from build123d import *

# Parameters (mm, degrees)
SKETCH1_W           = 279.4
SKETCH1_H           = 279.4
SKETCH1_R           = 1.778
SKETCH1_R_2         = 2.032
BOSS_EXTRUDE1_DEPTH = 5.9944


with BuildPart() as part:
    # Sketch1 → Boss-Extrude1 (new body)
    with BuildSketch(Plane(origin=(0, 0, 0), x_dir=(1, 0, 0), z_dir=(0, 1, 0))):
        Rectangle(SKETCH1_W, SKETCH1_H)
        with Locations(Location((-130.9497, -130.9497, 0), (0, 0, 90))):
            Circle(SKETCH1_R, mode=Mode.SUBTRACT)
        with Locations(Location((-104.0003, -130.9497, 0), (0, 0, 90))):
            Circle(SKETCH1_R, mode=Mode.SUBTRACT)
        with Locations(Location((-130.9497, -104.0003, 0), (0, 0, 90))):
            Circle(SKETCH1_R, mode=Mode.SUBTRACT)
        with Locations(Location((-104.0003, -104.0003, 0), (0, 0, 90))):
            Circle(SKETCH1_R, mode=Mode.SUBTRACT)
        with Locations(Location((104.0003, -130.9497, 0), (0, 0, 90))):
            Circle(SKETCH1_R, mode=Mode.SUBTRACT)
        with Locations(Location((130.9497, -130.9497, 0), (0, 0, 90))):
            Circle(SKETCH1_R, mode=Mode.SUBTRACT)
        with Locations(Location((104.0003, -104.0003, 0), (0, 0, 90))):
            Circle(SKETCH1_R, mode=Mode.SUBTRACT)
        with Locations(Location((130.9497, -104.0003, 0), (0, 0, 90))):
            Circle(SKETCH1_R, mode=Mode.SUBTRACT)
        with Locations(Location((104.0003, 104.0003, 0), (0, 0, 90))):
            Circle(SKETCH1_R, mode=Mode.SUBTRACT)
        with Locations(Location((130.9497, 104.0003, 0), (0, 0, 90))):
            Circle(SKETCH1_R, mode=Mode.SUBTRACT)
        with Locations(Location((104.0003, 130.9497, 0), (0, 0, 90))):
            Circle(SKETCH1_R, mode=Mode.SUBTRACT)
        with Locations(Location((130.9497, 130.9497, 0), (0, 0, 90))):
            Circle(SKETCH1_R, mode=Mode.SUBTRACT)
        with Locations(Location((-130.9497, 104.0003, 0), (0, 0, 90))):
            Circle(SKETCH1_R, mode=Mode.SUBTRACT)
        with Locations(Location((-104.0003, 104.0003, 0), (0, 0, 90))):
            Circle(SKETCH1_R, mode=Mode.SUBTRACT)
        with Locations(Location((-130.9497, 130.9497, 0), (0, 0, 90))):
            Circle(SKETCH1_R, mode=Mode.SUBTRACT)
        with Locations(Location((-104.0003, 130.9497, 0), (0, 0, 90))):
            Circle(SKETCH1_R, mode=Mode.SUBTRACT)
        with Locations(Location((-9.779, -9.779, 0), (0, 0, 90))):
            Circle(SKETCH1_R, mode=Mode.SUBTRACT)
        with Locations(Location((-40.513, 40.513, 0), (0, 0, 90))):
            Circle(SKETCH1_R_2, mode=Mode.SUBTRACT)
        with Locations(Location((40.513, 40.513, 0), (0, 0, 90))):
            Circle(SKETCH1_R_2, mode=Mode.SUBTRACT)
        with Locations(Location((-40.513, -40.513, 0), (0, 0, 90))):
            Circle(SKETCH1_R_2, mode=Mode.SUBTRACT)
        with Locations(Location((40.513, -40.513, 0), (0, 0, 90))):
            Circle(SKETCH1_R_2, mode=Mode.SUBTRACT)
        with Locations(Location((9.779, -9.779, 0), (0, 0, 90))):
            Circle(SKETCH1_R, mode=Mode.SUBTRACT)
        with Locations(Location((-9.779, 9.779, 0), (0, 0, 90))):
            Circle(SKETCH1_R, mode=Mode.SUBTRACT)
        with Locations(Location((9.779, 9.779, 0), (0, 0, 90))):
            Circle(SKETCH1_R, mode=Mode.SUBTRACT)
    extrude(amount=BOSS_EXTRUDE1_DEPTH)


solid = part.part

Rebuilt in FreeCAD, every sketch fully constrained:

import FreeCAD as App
import Part
import Sketcher
Q = App.Units.Quantity

doc = App.newDocument("Part")
body = doc.addObject("PartDesign::Body", "Body")

sketch1 = body.newObject("Sketcher::SketchObject", "Sketch")
sketch1.AttachmentSupport = (doc.getObject("XZ_Plane"), [""])
sketch1.MapMode = "FlatFace"
sketch1.addGeometry([
    Part.LineSegment(App.Vector(-139.7, -139.7, 0), App.Vector(-139.7, 139.7, 0)),
    Part.LineSegment(App.Vector(-139.7, 139.7, 0), App.Vector(139.7, 139.7, 0)),
    Part.LineSegment(App.Vector(139.7, 139.7, 0), App.Vector(139.7, -139.7, 0)),
    Part.LineSegment(App.Vector(139.7, -139.7, 0), App.Vector(-139.7, -139.7, 0)),
    Part.Circle(App.Vector(-130.9, 130.9, 0), App.Vector(0, 0, 1), 1.8),
    Part.Circle(App.Vector(-104, 130.9, 0), App.Vector(0, 0, 1), 1.8),
    Part.Circle(App.Vector(-130.9, 104, 0), App.Vector(0, 0, 1), 1.8),
    Part.Circle(App.Vector(-104, 104, 0), App.Vector(0, 0, 1), 1.8),
    Part.Circle(App.Vector(-40.5, 40.5, 0), App.Vector(0, 0, 1), 2),
    Part.Circle(App.Vector(-9.8, 9.8, 0), App.Vector(0, 0, 1), 1.8),
    Part.Circle(App.Vector(104, 130.9, 0), App.Vector(0, 0, 1), 1.8),
    Part.Circle(App.Vector(130.9, 130.9, 0), App.Vector(0, 0, 1), 1.8),
    Part.Circle(App.Vector(104, 104, 0), App.Vector(0, 0, 1), 1.8),
    Part.Circle(App.Vector(130.9, 104, 0), App.Vector(0, 0, 1), 1.8),
    Part.Circle(App.Vector(40.5, 40.5, 0), App.Vector(0, 0, 1), 2),
    Part.Circle(App.Vector(9.8, 9.8, 0), App.Vector(0, 0, 1), 1.8),
    Part.Circle(App.Vector(-9.8, -9.8, 0), App.Vector(0, 0, 1), 1.8),
    Part.Circle(App.Vector(-40.5, -40.5, 0), App.Vector(0, 0, 1), 2),
    Part.Circle(App.Vector(-130.9, -104, 0), App.Vector(0, 0, 1), 1.8),
    Part.Circle(App.Vector(-104, -104, 0), App.Vector(0, 0, 1), 1.8),
    Part.Circle(App.Vector(-130.9, -130.9, 0), App.Vector(0, 0, 1), 1.8),
    Part.Circle(App.Vector(-104, -130.9, 0), App.Vector(0, 0, 1), 1.8),
    Part.Circle(App.Vector(9.8, -9.8, 0), App.Vector(0, 0, 1), 1.8),
    Part.Circle(App.Vector(40.5, -40.5, 0), App.Vector(0, 0, 1), 2),
    Part.Circle(App.Vector(104, -104, 0), App.Vector(0, 0, 1), 1.8),
    Part.Circle(App.Vector(130.9, -104, 0), App.Vector(0, 0, 1), 1.8),
    Part.Circle(App.Vector(104, -130.9, 0), App.Vector(0, 0, 1), 1.8),
    Part.Circle(App.Vector(130.9, -130.9, 0), App.Vector(0, 0, 1), 1.8),
], False)
sketch1.addConstraint([
    Sketcher.Constraint("Coincident", 0, 2, 1, 1),
    Sketcher.Constraint("Coincident", 1, 2, 2, 1),
    Sketcher.Constraint("Coincident", 2, 2, 3, 1),
    Sketcher.Constraint("Coincident", 3, 2, 0, 1),
    Sketcher.Constraint("Vertical", 0),
    Sketcher.Constraint("Horizontal", 1),
    Sketcher.Constraint("Vertical", 2),
    Sketcher.Constraint("Horizontal", 3),
    Sketcher.Constraint("Equal", 4, 5),
    Sketcher.Constraint("Equal", 5, 6),
    Sketcher.Constraint("Equal", 6, 7),
    Sketcher.Constraint("Equal", 7, 9),
    Sketcher.Constraint("Equal", 9, 10),
    Sketcher.Constraint("Equal", 10, 11),
    Sketcher.Constraint("Equal", 11, 12),
    Sketcher.Constraint("Equal", 12, 13),
    Sketcher.Constraint("Equal", 8, 14),
    Sketcher.Constraint("Equal", 13, 15),
    Sketcher.Constraint("Equal", 15, 16),
    Sketcher.Constraint("Equal", 14, 17),
    Sketcher.Constraint("Equal", 16, 18),
    Sketcher.Constraint("Equal", 18, 19),
    Sketcher.Constraint("Equal", 19, 20),
    Sketcher.Constraint("Equal", 20, 21),
    Sketcher.Constraint("Equal", 21, 22),
    Sketcher.Constraint("Equal", 17, 23),
    Sketcher.Constraint("Equal", 22, 24),
    Sketcher.Constraint("Equal", 24, 25),
    Sketcher.Constraint("Equal", 25, 26),
    Sketcher.Constraint("Equal", 26, 27),
    Sketcher.Constraint("Symmetric", 15, 3, 16, 3, -1, 1),
    Sketcher.Constraint("Symmetric", 14, 3, 17, 3, -1, 1),
    Sketcher.Constraint("Symmetric", 13, 3, 18, 3, -1, 1),
    Sketcher.Constraint("Symmetric", 12, 3, 19, 3, -1, 1),
    Sketcher.Constraint("Symmetric", 11, 3, 20, 3, -1, 1),
    Sketcher.Constraint("Symmetric", 10, 3, 21, 3, -1, 1),
    Sketcher.Constraint("Symmetric", 9, 3, 22, 3, -1, 1),
    Sketcher.Constraint("Symmetric", 8, 3, 23, 3, -1, 1),
    Sketcher.Constraint("Symmetric", 7, 3, 24, 3, -1, 1),
    Sketcher.Constraint("Symmetric", 6, 3, 25, 3, -1, 1),
    Sketcher.Constraint("Symmetric", 5, 3, 26, 3, -1, 1),
    Sketcher.Constraint("Symmetric", 4, 3, 27, 3, -1, 1),
    Sketcher.Constraint("Symmetric", 0, 2, 2, 2, -1, 1),
    Sketcher.Constraint("Symmetric", 5, 3, 10, 3, -2),
    Sketcher.Constraint("Symmetric", 4, 3, 11, 3, -2),
    Sketcher.Constraint("Symmetric", 7, 3, 12, 3, -2),
    Sketcher.Constraint("Symmetric", 6, 3, 13, 3, -2),
    Sketcher.Constraint("Symmetric", 8, 3, 14, 3, -2),
    Sketcher.Constraint("Symmetric", 9, 3, 15, 3, -2),
    Sketcher.Constraint("Horizontal", 4, 3, 5, 3),
    Sketcher.Constraint("Horizontal", 6, 3, 7, 3),
    Sketcher.Constraint("Vertical", 4, 3, 6, 3),
    Sketcher.Constraint("Vertical", 5, 3, 7, 3),
    Sketcher.Constraint("Equal", 3, 0),
    Sketcher.Constraint("Diameter", 4, Q("0.14 in")),
    Sketcher.Constraint("Diameter", 8, Q("0.16 in")),
    Sketcher.Constraint("DistanceX", 1, 1, 1, 2, Q("11 in")),
    Sketcher.Constraint("DistanceX", 8, 3, 9, 3, Q("1.21 in")),
    Sketcher.Constraint("DistanceY", 9, 3, 8, 3, Q("1.21 in")),
    Sketcher.Constraint("DistanceX", 4, 3, 10, 3, Q("9.25 in")),
    Sketcher.Constraint("DistanceX", 9, 3, 14, 3, Q("1.98 in")),
    Sketcher.Constraint("DistanceY", 16, 3, 9, 3, Q("0.77 in")),
    Sketcher.Constraint("DistanceX", 4, 3, 5, 3, Q("1.061 in")),
    Sketcher.Constraint("DistanceY", 6, 3, 4, 3, Q("1.061 in")),
    Sketcher.Constraint("DistanceY", -1, 1, 4, 3, Q("5.1555 in")),
])
pad1 = body.newObject("PartDesign::Pad", "Pad")
pad1.Profile = sketch1
pad1.Length = Q("0.236 in")
pad1.Reversed = True

doc.recompute()
